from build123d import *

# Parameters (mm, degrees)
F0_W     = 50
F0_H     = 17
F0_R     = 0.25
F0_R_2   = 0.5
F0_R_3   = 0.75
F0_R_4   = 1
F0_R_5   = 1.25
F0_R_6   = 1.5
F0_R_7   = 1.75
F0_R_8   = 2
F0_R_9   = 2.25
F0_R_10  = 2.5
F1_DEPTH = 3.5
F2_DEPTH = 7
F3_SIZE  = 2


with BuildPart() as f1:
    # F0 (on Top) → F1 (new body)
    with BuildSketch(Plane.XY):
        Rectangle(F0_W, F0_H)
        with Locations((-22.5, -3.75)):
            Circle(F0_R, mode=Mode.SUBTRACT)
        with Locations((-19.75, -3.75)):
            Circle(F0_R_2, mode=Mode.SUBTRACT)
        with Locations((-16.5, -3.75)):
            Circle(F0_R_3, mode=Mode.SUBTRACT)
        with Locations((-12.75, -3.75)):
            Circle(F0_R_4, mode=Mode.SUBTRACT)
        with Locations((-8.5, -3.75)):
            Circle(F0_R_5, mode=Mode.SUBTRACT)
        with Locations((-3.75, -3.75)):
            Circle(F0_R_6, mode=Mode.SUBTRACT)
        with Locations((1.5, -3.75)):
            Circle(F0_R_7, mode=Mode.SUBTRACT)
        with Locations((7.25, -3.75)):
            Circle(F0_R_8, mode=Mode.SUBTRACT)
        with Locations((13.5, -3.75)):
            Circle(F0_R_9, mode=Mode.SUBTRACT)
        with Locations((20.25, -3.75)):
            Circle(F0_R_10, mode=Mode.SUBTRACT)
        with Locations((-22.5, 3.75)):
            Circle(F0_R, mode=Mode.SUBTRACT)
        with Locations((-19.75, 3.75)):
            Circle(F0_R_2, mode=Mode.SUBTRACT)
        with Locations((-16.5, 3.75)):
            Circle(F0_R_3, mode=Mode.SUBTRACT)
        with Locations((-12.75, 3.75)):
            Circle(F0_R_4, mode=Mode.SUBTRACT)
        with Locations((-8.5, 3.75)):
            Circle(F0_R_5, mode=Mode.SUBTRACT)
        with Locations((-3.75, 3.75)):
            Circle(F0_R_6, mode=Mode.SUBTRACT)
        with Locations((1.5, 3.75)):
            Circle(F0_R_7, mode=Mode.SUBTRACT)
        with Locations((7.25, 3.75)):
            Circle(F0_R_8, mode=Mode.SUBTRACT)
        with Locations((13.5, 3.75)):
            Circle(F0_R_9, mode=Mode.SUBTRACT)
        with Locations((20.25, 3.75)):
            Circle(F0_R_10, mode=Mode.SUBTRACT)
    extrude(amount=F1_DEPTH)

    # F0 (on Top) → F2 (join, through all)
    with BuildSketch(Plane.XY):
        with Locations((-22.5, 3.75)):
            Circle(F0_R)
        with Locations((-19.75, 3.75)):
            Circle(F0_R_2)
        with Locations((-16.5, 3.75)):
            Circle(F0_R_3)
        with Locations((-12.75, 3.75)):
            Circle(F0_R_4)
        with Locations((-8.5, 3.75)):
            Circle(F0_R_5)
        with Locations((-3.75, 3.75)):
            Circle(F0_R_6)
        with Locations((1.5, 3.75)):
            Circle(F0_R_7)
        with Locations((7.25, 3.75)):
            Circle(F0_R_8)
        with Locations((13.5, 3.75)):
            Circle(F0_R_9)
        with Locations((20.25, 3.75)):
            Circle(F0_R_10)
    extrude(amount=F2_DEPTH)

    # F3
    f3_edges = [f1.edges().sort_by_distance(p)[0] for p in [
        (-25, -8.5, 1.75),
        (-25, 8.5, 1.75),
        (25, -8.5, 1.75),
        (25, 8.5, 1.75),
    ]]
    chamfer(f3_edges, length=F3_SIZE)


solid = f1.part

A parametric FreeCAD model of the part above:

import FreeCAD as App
import Part
import Sketcher

V = App.Vector
Q = App.Units.Quantity


def edges_at(feature, points):
    """Names of the edges that pass closest to the given points."""
    edges = feature.Shape.Edges
    near = lambda p: min(range(len(edges)), key=lambda i: edges[i].distToShape(Part.Vertex(*p))[0])
    return sorted({f"Edge{near(p) + 1}" for p in points})


def add_polygon(sketch, points):
    """Adds a closed chain of lines whose ends are joined by coincident constraints."""
    first, n = sketch.GeometryCount, len(points)
    for a, b in zip(points, points[1:] + points[:1]):
        sketch.addGeometry(Part.LineSegment(App.Vector(*a, 0), App.Vector(*b, 0)), False)
    for i in range(n):
        sketch.addConstraint(Sketcher.Constraint("Coincident", first + i, 2, first + (i + 1) % n, 1))

doc = App.newDocument("Part")
params = doc.addObject("Spreadsheet::Sheet", "Params")
for row, (alias, value) in enumerate([
    ("sketch1_diameter", "1 mm"),
    ("sketch1_diameter2", "2 mm"),
    ("sketch1_diameter3", "3 mm"),
    ("sketch1_diameter4", "4 mm"),
    ("sketch1_diameter5", "5 mm"),
    ("pad1_length", "3.5 mm"),
    ("sketch2_diameter", "1 mm"),
    ("sketch2_diameter2", "2 mm"),
    ("sketch2_diameter3", "3 mm"),
    ("sketch2_diameter4", "4 mm"),
    ("sketch2_diameter5", "5 mm"),
    ("pad2_length", "7 mm"),
    ("chamfer_size", "2 mm"),
], start=1):
    params.set(f"A{row}", alias)
    params.set(f"B{row}", "=" + value)
    params.setAlias(f"B{row}", alias)

body = doc.addObject("PartDesign::Body", "Body")

# Sketch on XY plane
sketch1 = body.newObject("Sketcher::SketchObject", "Sketch")
sketch1.AttachmentSupport = (doc.getObject("XY_Plane"), [""])
sketch1.MapMode = "FlatFace"
add_polygon(sketch1, [(-25, 8.5), (-25, -8.5), (25, -8.5), (25, 8.5)])  # lines 0-3
sketch1.addGeometry(Part.Circle(V(-22.5, -3.75, 0), V(0, 0, 1), 0.25), False)  # 4
sketch1.addGeometry(Part.Circle(V(-19.75, -3.75, 0), V(0, 0, 1), 0.5), False)  # 5
sketch1.addGeometry(Part.Circle(V(-16.5, -3.75, 0), V(0, 0, 1), 0.75), False)  # 6
sketch1.addGeometry(Part.Circle(V(-12.75, -3.75, 0), V(0, 0, 1), 1), False)  # 7
sketch1.addGeometry(Part.Circle(V(-8.5, -3.75, 0), V(0, 0, 1), 1.25), False)  # 8
sketch1.addGeometry(Part.Circle(V(-3.75, -3.75, 0), V(0, 0, 1), 1.5), False)  # 9
sketch1.addGeometry(Part.Circle(V(1.5, -3.75, 0), V(0, 0, 1), 1.75), False)  # 10
sketch1.addGeometry(Part.Circle(V(7.25, -3.75, 0), V(0, 0, 1), 2), False)  # 11
sketch1.addGeometry(Part.Circle(V(13.5, -3.75, 0), V(0, 0, 1), 2.25), False)  # 12
sketch1.addGeometry(Part.Circle(V(20.25, -3.75, 0), V(0, 0, 1), 2.5), False)  # 13
sketch1.addGeometry(Part.Circle(V(-22.5, 3.75, 0), V(0, 0, 1), 0.25), False)  # 14
sketch1.addGeometry(Part.Circle(V(-19.75, 3.75, 0), V(0, 0, 1), 0.5), False)  # 15
sketch1.addGeometry(Part.Circle(V(-16.5, 3.75, 0), V(0, 0, 1), 0.75), False)  # 16
sketch1.addGeometry(Part.Circle(V(-12.75, 3.75, 0), V(0, 0, 1), 1), False)  # 17
sketch1.addGeometry(Part.Circle(V(-8.5, 3.75, 0), V(0, 0, 1), 1.25), False)  # 18
sketch1.addGeometry(Part.Circle(V(-3.75, 3.75, 0), V(0, 0, 1), 1.5), False)  # 19
sketch1.addGeometry(Part.Circle(V(1.5, 3.75, 0), V(0, 0, 1), 1.75), False)  # 20
sketch1.addGeometry(Part.Circle(V(7.25, 3.75, 0), V(0, 0, 1), 2), False)  # 21
sketch1.addGeometry(Part.Circle(V(13.5, 3.75, 0), V(0, 0, 1), 2.25), False)  # 22
sketch1.addGeometry(Part.Circle(V(20.25, 3.75, 0), V(0, 0, 1), 2.5), False)  # 23
sketch1.addConstraint(Sketcher.Constraint("Vertical", 0))
sketch1.addConstraint(Sketcher.Constraint("Horizontal", 1))
sketch1.addConstraint(Sketcher.Constraint("Vertical", 2))
sketch1.addConstraint(Sketcher.Constraint("Horizontal", 3))
sketch1.addConstraint(Sketcher.Constraint("Equal", 4, 14))
sketch1.addConstraint(Sketcher.Constraint("Equal", 5, 15))
sketch1.addConstraint(Sketcher.Constraint("Equal", 6, 16))
sketch1.addConstraint(Sketcher.Constraint("Equal", 7, 17))
sketch1.addConstraint(Sketcher.Constraint("Equal", 8, 18))
sketch1.addConstraint(Sketcher.Constraint("Equal", 9, 19))
sketch1.addConstraint(Sketcher.Constraint("Equal", 10, 20))
sketch1.addConstraint(Sketcher.Constraint("Equal", 11, 21))
sketch1.addConstraint(Sketcher.Constraint("Equal", 12, 22))
sketch1.addConstraint(Sketcher.Constraint("Equal", 13, 23))
sketch1.addConstraint(Sketcher.Constraint("Symmetric", 0, 2, 2, 2, -1, 1))
sketch1.addConstraint(Sketcher.Constraint("Symmetric", 4, 3, 14, 3, -1))
sketch1.addConstraint(Sketcher.Constraint("Symmetric", 5, 3, 15, 3, -1))
sketch1.addConstraint(Sketcher.Constraint("Symmetric", 6, 3, 16, 3, -1))
sketch1.addConstraint(Sketcher.Constraint("Symmetric", 7, 3, 17, 3, -1))
sketch1.addConstraint(Sketcher.Constraint("Symmetric", 8, 3, 18, 3, -1))
sketch1.addConstraint(Sketcher.Constraint("Symmetric", 9, 3, 19, 3, -1))
sketch1.addConstraint(Sketcher.Constraint("Symmetric", 10, 3, 20, 3, -1))
sketch1.addConstraint(Sketcher.Constraint("Symmetric", 11, 3, 21, 3, -1))
sketch1.addConstraint(Sketcher.Constraint("Symmetric", 12, 3, 22, 3, -1))
sketch1.addConstraint(Sketcher.Constraint("Symmetric", 13, 3, 23, 3, -1))
sketch1.addConstraint(Sketcher.Constraint("Horizontal", 4, 3, 5, 3))
sketch1.addConstraint(Sketcher.Constraint("Horizontal", 5, 3, 6, 3))
sketch1.addConstraint(Sketcher.Constraint("Horizontal", 6, 3, 7, 3))
sketch1.addConstraint(Sketcher.Constraint("Horizontal", 7, 3, 8, 3))
sketch1.addConstraint(Sketcher.Constraint("Horizontal", 8, 3, 9, 3))
sketch1.addConstraint(Sketcher.Constraint("Horizontal", 9, 3, 10, 3))
sketch1.addConstraint(Sketcher.Constraint("Horizontal", 10, 3, 11, 3))
sketch1.addConstraint(Sketcher.Constraint("Horizontal", 11, 3, 12, 3))
sketch1.addConstraint(Sketcher.Constraint("Horizontal", 12, 3, 13, 3))
sketch1.addConstraint(Sketcher.Constraint("Diameter", 5, Q("1 mm")))
sketch1.addConstraint(Sketcher.Constraint("Diameter", 7, Q("2 mm")))
sketch1.addConstraint(Sketcher.Constraint("Diameter", 9, Q("3 mm")))
sketch1.addConstraint(Sketcher.Constraint("Diameter", 11, Q("4 mm")))
sketch1.addConstraint(Sketcher.Constraint("Diameter", 13, Q("5 mm")))
sketch1.addConstraint(Sketcher.Constraint("Diameter", 4, Q("0.5 mm")))
sketch1.addConstraint(Sketcher.Constraint("Diameter", 6, Q("1.5 mm")))
sketch1.addConstraint(Sketcher.Constraint("Diameter", 8, Q("2.5 mm")))
sketch1.addConstraint(Sketcher.Constraint("Diameter", 10, Q("3.5 mm")))
sketch1.addConstraint(Sketcher.Constraint("Diameter", 12, Q("4.5 mm")))
sketch1.addConstraint(Sketcher.Constraint("DistanceX", 1, 1, 1, 2, Q("50 mm")))
sketch1.addConstraint(Sketcher.Constraint("DistanceY", 0, 2, 0, 1, Q("17 mm")))
sketch1.addConstraint(Sketcher.Constraint("DistanceX", 4, 3, 6, 3, Q("6 mm")))
sketch1.addConstraint(Sketcher.Constraint("DistanceX", 5, 3, 7, 3, Q("7 mm")))
sketch1.addConstraint(Sketcher.Constraint("DistanceX", 6, 3, 8, 3, Q("8 mm")))
sketch1.addConstraint(Sketcher.Constraint("DistanceX", 7, 3, 9, 3, Q("9 mm")))
sketch1.addConstraint(Sketcher.Constraint("DistanceX", 8, 3, 10, 3, Q("10 mm")))
sketch1.addConstraint(Sketcher.Constraint("DistanceX", 9, 3, 11, 3, Q("11 mm")))
sketch1.addConstraint(Sketcher.Constraint("DistanceX", 10, 3, 12, 3, Q("12 mm")))
sketch1.addConstraint(Sketcher.Constraint("DistanceX", 11, 3, 13, 3, Q("13 mm")))
sketch1.addConstraint(Sketcher.Constraint("DistanceX", 4, 3, -1, 1, Q("22.5 mm")))
sketch1.addConstraint(Sketcher.Constraint("DistanceY", 4, 3, 14, 3, Q("7.5 mm")))
sketch1.addConstraint(Sketcher.Constraint("DistanceX", 5, 3, -1, 1, Q("19.75 mm")))
sketch1.setExpression("Constraints[38]", "Params.sketch1_diameter")
sketch1.setExpression("Constraints[39]", "Params.sketch1_diameter2")
sketch1.setExpression("Constraints[40]", "Params.sketch1_diameter3")
sketch1.setExpression("Constraints[41]", "Params.sketch1_diameter4")
sketch1.setExpression("Constraints[42]", "Params.sketch1_diameter5")
pad1 = body.newObject("PartDesign::Pad", "Pad")
pad1.Profile = sketch1
pad1.setExpression("Length", "Params.pad1_length")

# Sketch on XY plane
sketch2 = body.newObject("Sketcher::SketchObject", "Sketch001")
sketch2.AttachmentSupport = (doc.getObject("XY_Plane"), [""])
sketch2.MapMode = "FlatFace"
sketch2.addGeometry(Part.Circle(V(-22.5, 3.75, 0), V(0, 0, 1), 0.25), False)
sketch2.addGeometry(Part.Circle(V(-19.75, 3.75, 0), V(0, 0, 1), 0.5), False)
sketch2.addGeometry(Part.Circle(V(-16.5, 3.75, 0), V(0, 0, 1), 0.75), False)
sketch2.addGeometry(Part.Circle(V(-12.75, 3.75, 0), V(0, 0, 1), 1), False)
sketch2.addGeometry(Part.Circle(V(-8.5, 3.75, 0), V(0, 0, 1), 1.25), False)
sketch2.addGeometry(Part.Circle(V(-3.75, 3.75, 0), V(0, 0, 1), 1.5), False)
sketch2.addGeometry(Part.Circle(V(1.5, 3.75, 0), V(0, 0, 1), 1.75), False)
sketch2.addGeometry(Part.Circle(V(7.25, 3.75, 0), V(0, 0, 1), 2), False)
sketch2.addGeometry(Part.Circle(V(13.5, 3.75, 0), V(0, 0, 1), 2.25), False)
sketch2.addGeometry(Part.Circle(V(20.25, 3.75, 0), V(0, 0, 1), 2.5), False)
sketch2.addConstraint(Sketcher.Constraint("Horizontal", 0, 3, 1, 3))
sketch2.addConstraint(Sketcher.Constraint("Horizontal", 1, 3, 2, 3))
sketch2.addConstraint(Sketcher.Constraint("Horizontal", 2, 3, 3, 3))
sketch2.addConstraint(Sketcher.Constraint("Horizontal", 3, 3, 4, 3))
sketch2.addConstraint(Sketcher.Constraint("Horizontal", 4, 3, 5, 3))
sketch2.addConstraint(Sketcher.Constraint("Horizontal", 5, 3, 6, 3))
sketch2.addConstraint(Sketcher.Constraint("Horizontal", 6, 3, 7, 3))
sketch2.addConstraint(Sketcher.Constraint("Horizontal", 7, 3, 8, 3))
sketch2.addConstraint(Sketcher.Constraint("Horizontal", 8, 3, 9, 3))
sketch2.addConstraint(Sketcher.Constraint("Diameter", 1, Q("1 mm")))
sketch2.addConstraint(Sketcher.Constraint("Diameter", 3, Q("2 mm")))
sketch2.addConstraint(Sketcher.Constraint("Diameter", 5, Q("3 mm")))
sketch2.addConstraint(Sketcher.Constraint("Diameter", 7, Q("4 mm")))
sketch2.addConstraint(Sketcher.Constraint("Diameter", 9, Q("5 mm")))
sketch2.addConstraint(Sketcher.Constraint("Diameter", 0, Q("0.5 mm")))
sketch2.addConstraint(Sketcher.Constraint("Diameter", 2, Q("1.5 mm")))
sketch2.addConstraint(Sketcher.Constraint("Diameter", 4, Q("2.5 mm")))
sketch2.addConstraint(Sketcher.Constraint("Diameter", 6, Q("3.5 mm")))
sketch2.addConstraint(Sketcher.Constraint("Diameter", 8, Q("4.5 mm")))
sketch2.addConstraint(Sketcher.Constraint("DistanceX", 0, 3, 2, 3, Q("6 mm")))
sketch2.addConstraint(Sketcher.Constraint("DistanceX", 1, 3, 3, 3, Q("7 mm")))
sketch2.addConstraint(Sketcher.Constraint("DistanceX", 2, 3, 4, 3, Q("8 mm")))
sketch2.addConstraint(Sketcher.Constraint("DistanceX", 3, 3, 5, 3, Q("9 mm")))
sketch2.addConstraint(Sketcher.Constraint("DistanceX", 4, 3, 6, 3, Q("10 mm")))
sketch2.addConstraint(Sketcher.Constraint("DistanceX", 5, 3, 7, 3, Q("11 mm")))
sketch2.addConstraint(Sketcher.Constraint("DistanceX", 6, 3, 8, 3, Q("12 mm")))
sketch2.addConstraint(Sketcher.Constraint("DistanceX", 7, 3, 9, 3, Q("13 mm")))
sketch2.addConstraint(Sketcher.Constraint("DistanceX", 0, 3, -1, 1, Q("22.5 mm")))
sketch2.addConstraint(Sketcher.Constraint("DistanceY", -1, 1, 0, 3, Q("3.75 mm")))
sketch2.addConstraint(Sketcher.Constraint("DistanceX", 1, 3, -1, 1, Q("19.75 mm")))
sketch2.setExpression("Constraints[9]", "Params.sketch2_diameter")
sketch2.setExpression("Constraints[10]", "Params.sketch2_diameter2")
sketch2.setExpression("Constraints[11]", "Params.sketch2_diameter3")
sketch2.setExpression("Constraints[12]", "Params.sketch2_diameter4")
sketch2.setExpression("Constraints[13]", "Params.sketch2_diameter5")
pad2 = body.newObject("PartDesign::Pad", "Pad001")
pad2.Profile = sketch2
pad2.setExpression("Length", "Params.pad2_length")
doc.recompute()

chamfer = body.newObject("PartDesign::Chamfer", "Chamfer")
chamfer.Base = (pad2, edges_at(pad2, [
    (-25, -8.5, 1.75),
    (-25, 8.5, 1.75),
    (25, -8.5, 1.75),
    (25, 8.5, 1.75),
]))
chamfer.setExpression("Size", "Params.chamfer_size")

doc.recompute()
